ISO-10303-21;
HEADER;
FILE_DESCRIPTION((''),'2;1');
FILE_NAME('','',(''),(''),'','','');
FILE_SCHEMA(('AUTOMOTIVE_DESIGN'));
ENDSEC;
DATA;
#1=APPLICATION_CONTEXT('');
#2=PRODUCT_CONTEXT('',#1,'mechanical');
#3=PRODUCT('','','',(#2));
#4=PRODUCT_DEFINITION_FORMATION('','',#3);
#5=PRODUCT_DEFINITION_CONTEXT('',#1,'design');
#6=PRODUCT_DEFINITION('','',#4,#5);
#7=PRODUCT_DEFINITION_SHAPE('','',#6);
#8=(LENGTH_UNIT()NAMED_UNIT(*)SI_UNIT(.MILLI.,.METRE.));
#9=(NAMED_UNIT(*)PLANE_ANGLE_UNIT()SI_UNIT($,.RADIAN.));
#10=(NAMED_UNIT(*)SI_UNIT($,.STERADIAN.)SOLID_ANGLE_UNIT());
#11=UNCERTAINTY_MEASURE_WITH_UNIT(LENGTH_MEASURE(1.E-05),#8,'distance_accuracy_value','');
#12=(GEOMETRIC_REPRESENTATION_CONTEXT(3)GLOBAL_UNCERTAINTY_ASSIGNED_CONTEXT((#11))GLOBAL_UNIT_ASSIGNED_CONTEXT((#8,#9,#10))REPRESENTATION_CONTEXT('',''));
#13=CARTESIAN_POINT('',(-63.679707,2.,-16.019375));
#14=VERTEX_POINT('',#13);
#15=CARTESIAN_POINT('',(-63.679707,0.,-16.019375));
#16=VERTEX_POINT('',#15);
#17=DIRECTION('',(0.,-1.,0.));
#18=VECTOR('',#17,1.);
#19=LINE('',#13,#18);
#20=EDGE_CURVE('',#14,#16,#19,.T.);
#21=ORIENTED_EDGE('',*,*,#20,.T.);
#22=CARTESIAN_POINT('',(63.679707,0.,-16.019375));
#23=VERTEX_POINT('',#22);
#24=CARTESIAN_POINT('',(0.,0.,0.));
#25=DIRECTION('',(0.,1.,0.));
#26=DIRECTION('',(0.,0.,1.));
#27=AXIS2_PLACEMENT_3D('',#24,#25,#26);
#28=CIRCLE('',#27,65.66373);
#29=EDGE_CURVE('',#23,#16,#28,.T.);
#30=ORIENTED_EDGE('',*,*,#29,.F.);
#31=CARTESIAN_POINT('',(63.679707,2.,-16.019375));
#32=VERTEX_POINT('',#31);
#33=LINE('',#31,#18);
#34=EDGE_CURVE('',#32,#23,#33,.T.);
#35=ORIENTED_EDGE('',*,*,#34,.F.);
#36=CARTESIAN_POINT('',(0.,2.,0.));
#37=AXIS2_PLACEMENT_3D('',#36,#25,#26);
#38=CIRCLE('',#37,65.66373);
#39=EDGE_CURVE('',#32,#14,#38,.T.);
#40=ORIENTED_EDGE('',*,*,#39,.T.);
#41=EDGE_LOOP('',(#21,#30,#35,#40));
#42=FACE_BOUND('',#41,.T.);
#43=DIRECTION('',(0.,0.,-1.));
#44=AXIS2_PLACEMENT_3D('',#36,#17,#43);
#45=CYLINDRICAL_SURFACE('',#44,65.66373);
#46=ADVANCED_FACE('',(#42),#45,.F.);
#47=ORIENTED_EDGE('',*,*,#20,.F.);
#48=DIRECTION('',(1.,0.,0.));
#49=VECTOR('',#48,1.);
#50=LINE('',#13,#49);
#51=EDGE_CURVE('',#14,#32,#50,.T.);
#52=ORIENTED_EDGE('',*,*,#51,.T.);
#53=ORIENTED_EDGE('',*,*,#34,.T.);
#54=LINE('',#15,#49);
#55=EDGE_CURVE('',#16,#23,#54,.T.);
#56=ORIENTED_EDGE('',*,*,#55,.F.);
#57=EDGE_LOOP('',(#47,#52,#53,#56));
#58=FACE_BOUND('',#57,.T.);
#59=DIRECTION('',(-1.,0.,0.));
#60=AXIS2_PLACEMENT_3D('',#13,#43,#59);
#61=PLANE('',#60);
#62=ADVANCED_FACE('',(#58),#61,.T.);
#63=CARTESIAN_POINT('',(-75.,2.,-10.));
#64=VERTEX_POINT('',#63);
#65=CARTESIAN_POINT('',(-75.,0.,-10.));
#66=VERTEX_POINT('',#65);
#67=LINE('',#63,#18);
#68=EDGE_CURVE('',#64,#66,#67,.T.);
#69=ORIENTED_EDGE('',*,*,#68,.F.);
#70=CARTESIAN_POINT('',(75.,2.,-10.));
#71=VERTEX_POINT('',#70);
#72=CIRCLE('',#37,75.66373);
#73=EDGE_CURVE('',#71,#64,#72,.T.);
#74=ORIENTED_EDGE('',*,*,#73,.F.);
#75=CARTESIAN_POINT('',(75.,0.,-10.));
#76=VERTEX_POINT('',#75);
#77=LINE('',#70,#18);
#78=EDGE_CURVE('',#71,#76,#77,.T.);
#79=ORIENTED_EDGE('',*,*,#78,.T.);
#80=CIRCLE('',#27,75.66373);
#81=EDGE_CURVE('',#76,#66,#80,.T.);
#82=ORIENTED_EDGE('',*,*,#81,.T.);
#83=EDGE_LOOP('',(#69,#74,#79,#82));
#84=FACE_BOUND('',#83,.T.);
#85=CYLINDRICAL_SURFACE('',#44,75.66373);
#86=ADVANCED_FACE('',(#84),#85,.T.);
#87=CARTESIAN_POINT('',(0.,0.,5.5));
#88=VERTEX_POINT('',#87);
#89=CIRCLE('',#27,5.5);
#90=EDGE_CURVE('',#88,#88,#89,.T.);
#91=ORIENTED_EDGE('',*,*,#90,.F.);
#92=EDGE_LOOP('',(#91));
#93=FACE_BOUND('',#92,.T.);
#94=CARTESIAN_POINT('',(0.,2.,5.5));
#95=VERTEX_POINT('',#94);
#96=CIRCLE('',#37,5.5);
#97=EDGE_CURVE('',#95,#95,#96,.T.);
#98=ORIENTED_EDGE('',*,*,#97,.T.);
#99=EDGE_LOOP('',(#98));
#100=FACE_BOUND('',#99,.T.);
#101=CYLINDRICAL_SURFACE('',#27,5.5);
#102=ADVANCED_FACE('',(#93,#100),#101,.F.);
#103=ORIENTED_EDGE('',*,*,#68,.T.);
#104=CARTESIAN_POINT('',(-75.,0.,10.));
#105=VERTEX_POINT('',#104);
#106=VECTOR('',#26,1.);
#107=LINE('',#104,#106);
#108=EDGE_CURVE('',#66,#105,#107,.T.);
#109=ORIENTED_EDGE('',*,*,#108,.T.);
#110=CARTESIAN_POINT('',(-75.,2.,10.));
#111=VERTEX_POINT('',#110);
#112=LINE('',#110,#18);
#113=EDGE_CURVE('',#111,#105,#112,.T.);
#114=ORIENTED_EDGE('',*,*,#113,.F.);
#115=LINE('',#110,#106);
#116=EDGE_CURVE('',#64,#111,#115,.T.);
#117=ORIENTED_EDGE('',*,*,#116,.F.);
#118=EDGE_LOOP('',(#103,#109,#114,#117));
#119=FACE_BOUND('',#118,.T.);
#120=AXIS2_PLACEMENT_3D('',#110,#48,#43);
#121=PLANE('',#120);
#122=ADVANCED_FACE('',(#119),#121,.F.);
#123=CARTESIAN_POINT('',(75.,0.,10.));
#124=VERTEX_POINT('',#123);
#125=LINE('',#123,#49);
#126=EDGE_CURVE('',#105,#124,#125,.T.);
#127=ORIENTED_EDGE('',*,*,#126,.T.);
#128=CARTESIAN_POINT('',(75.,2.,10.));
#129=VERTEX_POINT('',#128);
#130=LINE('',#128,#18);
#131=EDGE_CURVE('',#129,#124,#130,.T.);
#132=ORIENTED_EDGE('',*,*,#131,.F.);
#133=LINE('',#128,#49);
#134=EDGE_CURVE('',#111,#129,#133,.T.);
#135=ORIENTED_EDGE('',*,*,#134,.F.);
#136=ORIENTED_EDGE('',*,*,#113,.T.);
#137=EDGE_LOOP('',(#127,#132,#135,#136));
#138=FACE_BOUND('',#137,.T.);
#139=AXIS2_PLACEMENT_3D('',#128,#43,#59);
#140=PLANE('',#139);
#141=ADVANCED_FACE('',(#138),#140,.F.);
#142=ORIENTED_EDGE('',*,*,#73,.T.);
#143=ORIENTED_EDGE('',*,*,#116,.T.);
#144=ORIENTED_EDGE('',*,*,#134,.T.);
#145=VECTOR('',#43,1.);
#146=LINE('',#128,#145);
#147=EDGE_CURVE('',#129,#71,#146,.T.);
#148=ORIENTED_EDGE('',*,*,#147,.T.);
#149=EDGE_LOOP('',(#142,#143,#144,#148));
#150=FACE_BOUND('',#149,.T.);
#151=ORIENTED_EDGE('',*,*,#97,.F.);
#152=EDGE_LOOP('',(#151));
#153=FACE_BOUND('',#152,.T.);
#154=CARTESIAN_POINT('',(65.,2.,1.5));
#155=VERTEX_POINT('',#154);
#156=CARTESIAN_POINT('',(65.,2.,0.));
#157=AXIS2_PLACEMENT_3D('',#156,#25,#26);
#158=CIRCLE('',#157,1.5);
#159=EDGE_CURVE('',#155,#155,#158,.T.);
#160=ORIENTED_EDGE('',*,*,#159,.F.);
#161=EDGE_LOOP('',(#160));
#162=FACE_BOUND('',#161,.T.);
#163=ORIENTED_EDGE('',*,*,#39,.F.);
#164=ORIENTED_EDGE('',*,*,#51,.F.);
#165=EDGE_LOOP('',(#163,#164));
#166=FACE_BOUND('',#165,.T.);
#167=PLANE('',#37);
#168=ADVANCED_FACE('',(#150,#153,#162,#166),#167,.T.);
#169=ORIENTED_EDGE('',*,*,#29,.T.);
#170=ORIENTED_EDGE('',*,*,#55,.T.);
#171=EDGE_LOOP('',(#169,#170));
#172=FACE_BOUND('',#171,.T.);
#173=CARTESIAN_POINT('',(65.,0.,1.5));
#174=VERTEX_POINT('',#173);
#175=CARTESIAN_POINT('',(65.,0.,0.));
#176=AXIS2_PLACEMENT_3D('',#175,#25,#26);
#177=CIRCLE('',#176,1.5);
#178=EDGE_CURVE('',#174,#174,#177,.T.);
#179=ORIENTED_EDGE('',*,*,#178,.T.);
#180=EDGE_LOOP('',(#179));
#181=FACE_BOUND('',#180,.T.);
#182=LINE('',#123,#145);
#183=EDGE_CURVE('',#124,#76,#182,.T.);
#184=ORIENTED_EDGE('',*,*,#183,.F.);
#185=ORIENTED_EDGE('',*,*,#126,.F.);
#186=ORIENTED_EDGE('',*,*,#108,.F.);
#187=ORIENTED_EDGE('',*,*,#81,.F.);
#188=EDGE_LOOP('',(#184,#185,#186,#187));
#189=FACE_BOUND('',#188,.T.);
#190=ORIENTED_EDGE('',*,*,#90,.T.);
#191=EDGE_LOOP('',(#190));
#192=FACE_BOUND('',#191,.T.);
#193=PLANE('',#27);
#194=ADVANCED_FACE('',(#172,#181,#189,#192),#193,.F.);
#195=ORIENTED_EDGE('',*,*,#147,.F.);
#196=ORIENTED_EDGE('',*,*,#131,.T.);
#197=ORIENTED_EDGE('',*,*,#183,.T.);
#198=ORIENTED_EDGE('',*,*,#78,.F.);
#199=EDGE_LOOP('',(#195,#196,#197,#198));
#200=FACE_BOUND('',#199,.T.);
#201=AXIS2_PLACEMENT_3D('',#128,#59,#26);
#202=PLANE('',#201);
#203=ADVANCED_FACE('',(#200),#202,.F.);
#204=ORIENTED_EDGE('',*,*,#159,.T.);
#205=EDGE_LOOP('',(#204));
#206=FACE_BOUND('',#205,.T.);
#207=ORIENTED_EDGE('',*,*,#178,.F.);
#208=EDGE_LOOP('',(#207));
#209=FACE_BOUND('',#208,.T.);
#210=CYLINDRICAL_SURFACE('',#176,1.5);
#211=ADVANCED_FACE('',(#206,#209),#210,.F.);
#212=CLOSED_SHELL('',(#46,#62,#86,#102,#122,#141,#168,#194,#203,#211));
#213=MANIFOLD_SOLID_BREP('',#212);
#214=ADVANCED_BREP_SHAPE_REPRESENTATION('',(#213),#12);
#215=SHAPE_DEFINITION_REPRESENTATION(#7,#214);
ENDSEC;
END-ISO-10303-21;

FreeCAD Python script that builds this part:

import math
import FreeCAD as App
import Part
import Sketcher

doc = App.newDocument("Part")
body = doc.addObject("PartDesign::Body", "Body")

sketch1 = doc.addObject("Sketcher::SketchObject", "Sketch")
body.addObject(sketch1)
sketch1.AttachmentSupport = (doc.XZ_Plane, [""])
sketch1.MapMode = "FlatFace"
sketch1.addGeometry([
    Part.LineSegment(App.Vector(-75, 10, 0), App.Vector(75, 10, 0)),
    Part.LineSegment(App.Vector(75, 10, 0), App.Vector(75, -10, 0)),
    Part.ArcOfCircle(Part.Circle(App.Vector(0, 0, 0), App.Vector(0, 0, 1), 76), math.radians(-172), math.radians(-8)),
    Part.LineSegment(App.Vector(-75, -10, 0), App.Vector(-75, 10, 0)),
    Part.ArcOfCircle(Part.Circle(App.Vector(0, 0, 0), App.Vector(0, 0, 1), 66), math.radians(-166), math.radians(-14)),
    Part.LineSegment(App.Vector(64, -16, 0), App.Vector(-64, -16, 0)),
], False)
sketch1.addConstraint([
    Sketcher.Constraint("Coincident", 0, 2, 1, 1),
    Sketcher.Constraint("Coincident", 1, 2, 2, 2),
    Sketcher.Constraint("Coincident", 2, 1, 3, 1),
    Sketcher.Constraint("Coincident", 3, 2, 0, 1),
    Sketcher.Constraint("Coincident", 4, 1, 5, 2),
    Sketcher.Constraint("Coincident", 5, 1, 4, 2),
    Sketcher.Constraint("Horizontal", 0),
    Sketcher.Constraint("Vertical", 1),
    Sketcher.Constraint("Vertical", 3),
    Sketcher.Constraint("Horizontal", 5),
    Sketcher.Constraint("Coincident", 2, 3, -1, 1),
    Sketcher.Constraint("Coincident", 4, 3, -1, 1),
    Sketcher.Constraint("Symmetric", 0, 2, 2, 1, -1, 1),
    Sketcher.Constraint("DistanceX", 0, 1, 0, 2, 150.0),
    Sketcher.Constraint("DistanceY", 1, 2, 1, 1, 20.0),
    Sketcher.Constraint("Radius", 4, 65.66373),
    Sketcher.Constraint("DistanceX", 5, 2, 5, 1, 127.359413),
])
pad1 = doc.addObject("PartDesign::Pad", "Pad")
body.addObject(pad1)
pad1.Profile = sketch1
pad1.Length = 2
pad1.Reversed = True

sketch2 = doc.addObject("Sketcher::SketchObject", "Sketch001")
body.addObject(sketch2)
sketch2.AttachmentSupport = (doc.XZ_Plane, [""])
sketch2.MapMode = "FlatFace"
sketch2.AttachmentOffset = App.Placement(App.Vector(0, 0, -2), App.Rotation())
sketch2.addGeometry([
    Part.Circle(App.Vector(0, 0, 0), App.Vector(0, 0, 1), 5.5),
    Part.Circle(App.Vector(65, 0, 0), App.Vector(0, 0, 1), 1.5),
], False)
sketch2.addConstraint([
    Sketcher.Constraint("Coincident", 0, 3, -1, 1),
    Sketcher.Constraint("PointOnObject", 1, 3, -1),
    Sketcher.Constraint("Diameter", 0, 11.0),
    Sketcher.Constraint("Diameter", 1, 3.0),
    Sketcher.Constraint("DistanceX", -1, 1, 1, 3, 65.0),
])
pocket1 = doc.addObject("PartDesign::Pocket", "Pocket")
body.addObject(pocket1)
pocket1.Profile = sketch2
pocket1.Length = 2
pocket1.Reversed = True

doc.recompute()
